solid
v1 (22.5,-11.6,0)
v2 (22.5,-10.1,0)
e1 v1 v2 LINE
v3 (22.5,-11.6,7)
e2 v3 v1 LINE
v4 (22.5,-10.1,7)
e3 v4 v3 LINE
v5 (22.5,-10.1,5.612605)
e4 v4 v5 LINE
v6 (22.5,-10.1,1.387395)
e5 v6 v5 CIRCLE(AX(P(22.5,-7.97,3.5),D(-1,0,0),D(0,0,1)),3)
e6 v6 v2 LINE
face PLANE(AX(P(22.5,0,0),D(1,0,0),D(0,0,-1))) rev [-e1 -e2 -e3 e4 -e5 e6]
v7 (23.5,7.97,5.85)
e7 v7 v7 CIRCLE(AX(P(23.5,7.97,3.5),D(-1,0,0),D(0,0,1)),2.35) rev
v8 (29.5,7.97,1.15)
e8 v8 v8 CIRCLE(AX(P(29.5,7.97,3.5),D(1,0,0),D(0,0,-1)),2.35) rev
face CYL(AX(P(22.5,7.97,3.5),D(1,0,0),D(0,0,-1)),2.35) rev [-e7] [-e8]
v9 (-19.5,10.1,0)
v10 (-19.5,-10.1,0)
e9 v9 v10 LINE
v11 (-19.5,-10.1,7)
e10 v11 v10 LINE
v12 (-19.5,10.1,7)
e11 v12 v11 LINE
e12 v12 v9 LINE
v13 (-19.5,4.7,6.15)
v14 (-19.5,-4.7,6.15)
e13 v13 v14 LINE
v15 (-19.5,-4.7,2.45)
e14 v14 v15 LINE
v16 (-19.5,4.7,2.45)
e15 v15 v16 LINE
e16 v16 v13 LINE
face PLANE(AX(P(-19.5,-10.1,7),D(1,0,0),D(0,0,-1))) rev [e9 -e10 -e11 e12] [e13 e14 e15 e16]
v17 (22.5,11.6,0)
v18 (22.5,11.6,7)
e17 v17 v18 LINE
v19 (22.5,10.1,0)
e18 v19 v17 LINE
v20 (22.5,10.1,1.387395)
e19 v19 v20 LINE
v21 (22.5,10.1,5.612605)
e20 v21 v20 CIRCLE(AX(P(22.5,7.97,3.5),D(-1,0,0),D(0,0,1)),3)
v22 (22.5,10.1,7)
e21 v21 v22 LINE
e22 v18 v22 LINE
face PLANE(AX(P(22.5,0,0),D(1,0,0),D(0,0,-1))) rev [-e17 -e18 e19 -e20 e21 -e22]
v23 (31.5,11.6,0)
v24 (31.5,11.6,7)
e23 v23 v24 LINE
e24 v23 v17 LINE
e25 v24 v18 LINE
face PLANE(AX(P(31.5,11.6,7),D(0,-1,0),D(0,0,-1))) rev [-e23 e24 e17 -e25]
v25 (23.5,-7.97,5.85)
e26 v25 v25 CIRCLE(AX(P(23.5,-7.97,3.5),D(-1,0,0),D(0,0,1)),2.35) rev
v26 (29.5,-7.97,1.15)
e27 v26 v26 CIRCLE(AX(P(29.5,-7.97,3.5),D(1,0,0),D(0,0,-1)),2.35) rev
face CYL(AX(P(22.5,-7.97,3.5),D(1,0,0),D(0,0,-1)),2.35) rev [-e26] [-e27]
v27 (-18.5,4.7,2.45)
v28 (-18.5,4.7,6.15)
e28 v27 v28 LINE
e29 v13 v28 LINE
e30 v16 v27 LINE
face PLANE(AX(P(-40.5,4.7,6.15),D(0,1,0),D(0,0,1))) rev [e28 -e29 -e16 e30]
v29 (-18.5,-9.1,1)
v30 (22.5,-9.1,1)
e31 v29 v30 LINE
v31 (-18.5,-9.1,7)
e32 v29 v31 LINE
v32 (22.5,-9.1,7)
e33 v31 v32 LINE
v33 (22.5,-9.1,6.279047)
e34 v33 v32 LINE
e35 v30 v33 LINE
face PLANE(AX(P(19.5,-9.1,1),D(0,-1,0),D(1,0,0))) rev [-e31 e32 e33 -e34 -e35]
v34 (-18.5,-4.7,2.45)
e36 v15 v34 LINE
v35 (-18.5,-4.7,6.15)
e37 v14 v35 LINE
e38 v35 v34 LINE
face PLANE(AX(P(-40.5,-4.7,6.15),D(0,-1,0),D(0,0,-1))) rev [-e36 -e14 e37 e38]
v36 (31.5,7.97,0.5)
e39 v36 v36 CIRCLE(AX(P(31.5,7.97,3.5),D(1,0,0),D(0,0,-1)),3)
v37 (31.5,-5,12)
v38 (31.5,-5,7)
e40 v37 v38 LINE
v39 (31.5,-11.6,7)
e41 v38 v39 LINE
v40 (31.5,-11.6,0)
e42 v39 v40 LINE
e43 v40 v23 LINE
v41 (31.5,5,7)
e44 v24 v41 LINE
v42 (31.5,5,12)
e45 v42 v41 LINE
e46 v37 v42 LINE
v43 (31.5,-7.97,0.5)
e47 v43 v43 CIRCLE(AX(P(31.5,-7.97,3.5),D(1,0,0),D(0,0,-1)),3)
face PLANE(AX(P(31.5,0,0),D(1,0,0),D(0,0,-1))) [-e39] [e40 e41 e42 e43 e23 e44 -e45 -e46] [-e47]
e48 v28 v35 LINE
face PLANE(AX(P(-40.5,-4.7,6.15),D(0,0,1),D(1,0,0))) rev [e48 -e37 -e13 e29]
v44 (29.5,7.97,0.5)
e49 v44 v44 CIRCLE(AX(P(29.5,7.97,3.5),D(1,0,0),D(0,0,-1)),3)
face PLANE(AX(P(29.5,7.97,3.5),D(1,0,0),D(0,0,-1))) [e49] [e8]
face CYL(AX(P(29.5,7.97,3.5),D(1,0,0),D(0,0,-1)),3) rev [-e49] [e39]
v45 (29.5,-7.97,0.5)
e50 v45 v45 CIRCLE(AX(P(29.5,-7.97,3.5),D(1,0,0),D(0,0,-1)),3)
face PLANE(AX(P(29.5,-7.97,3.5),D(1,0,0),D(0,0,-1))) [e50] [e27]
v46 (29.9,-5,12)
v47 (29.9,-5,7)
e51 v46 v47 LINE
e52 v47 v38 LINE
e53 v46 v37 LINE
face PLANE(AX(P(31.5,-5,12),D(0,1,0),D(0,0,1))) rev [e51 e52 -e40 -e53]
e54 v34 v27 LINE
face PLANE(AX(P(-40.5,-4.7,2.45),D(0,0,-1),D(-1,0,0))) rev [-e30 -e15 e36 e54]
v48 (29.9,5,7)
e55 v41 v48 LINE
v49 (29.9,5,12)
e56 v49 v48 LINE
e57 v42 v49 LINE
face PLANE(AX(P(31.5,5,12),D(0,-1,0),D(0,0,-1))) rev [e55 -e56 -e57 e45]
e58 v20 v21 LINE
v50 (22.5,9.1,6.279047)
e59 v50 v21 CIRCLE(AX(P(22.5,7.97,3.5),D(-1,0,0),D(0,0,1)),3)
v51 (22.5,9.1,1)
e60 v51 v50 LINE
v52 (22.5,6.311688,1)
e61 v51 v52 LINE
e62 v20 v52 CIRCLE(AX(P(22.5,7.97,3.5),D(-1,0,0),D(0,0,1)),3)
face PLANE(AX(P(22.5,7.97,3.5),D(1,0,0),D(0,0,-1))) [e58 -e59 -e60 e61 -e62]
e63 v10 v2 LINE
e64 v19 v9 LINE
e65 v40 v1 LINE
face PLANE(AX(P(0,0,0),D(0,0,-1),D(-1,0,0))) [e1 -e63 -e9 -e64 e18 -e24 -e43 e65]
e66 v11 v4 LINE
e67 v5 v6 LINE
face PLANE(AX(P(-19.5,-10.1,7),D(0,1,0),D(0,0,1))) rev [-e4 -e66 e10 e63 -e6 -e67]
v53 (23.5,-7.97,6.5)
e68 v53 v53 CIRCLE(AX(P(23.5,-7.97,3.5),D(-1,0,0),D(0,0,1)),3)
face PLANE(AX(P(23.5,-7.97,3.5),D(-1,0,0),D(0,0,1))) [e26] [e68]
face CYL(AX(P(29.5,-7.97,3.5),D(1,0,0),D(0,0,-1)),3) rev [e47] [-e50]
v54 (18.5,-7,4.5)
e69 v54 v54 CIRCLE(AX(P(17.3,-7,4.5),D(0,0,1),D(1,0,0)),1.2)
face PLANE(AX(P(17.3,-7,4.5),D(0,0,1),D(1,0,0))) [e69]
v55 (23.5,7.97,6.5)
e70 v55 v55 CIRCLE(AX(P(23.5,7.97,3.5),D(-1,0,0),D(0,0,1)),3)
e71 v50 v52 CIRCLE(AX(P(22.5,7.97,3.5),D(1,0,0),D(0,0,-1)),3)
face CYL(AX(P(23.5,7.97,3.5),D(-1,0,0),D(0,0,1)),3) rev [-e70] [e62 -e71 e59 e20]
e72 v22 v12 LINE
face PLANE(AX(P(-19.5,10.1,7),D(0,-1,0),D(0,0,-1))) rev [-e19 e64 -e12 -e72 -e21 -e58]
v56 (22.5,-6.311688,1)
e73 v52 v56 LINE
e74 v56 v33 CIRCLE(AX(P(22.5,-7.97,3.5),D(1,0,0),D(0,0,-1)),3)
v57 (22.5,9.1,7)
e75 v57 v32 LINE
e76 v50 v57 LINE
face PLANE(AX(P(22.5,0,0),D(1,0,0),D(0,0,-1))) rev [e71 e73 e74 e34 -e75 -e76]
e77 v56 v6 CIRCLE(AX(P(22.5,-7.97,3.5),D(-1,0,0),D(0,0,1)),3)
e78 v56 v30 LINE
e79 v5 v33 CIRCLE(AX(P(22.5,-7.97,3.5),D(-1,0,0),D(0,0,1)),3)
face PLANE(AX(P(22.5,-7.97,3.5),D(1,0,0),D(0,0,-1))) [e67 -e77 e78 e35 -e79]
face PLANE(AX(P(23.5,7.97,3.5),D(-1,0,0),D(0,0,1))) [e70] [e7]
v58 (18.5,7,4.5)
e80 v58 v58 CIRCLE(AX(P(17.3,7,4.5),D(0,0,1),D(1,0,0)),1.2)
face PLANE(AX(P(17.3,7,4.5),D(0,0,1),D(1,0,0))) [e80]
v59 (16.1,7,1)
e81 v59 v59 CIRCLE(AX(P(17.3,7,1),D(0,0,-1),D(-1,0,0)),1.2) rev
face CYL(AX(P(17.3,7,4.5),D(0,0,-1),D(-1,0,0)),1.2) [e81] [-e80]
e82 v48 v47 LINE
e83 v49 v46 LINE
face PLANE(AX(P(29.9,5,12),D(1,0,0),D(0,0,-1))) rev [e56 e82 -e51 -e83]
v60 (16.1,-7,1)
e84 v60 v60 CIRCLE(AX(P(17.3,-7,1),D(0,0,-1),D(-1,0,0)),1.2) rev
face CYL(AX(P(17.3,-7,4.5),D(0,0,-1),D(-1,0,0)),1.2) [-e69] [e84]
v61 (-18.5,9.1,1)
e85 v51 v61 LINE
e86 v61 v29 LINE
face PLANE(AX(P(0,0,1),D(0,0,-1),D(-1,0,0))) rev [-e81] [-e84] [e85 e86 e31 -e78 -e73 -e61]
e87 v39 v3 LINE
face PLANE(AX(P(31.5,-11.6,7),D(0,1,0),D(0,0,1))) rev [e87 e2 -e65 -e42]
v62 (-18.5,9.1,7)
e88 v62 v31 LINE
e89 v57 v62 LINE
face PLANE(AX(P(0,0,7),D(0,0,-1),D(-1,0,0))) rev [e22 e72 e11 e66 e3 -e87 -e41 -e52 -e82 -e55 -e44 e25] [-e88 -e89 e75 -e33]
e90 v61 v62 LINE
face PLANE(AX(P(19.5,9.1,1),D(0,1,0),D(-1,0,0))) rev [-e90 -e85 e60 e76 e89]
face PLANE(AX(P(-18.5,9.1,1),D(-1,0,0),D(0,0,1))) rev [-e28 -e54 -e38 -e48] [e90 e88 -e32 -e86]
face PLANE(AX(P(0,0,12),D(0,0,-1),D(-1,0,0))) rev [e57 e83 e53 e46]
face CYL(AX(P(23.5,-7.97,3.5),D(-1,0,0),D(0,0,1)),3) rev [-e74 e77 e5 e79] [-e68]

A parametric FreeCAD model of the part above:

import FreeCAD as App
import Part
import Sketcher

V = App.Vector


def add_polygon(sketch, points):
    """Adds a closed chain of lines whose ends are joined by coincident constraints."""
    first, n = sketch.GeometryCount, len(points)
    for a, b in zip(points, points[1:] + points[:1]):
        sketch.addGeometry(Part.LineSegment(App.Vector(*a, 0), App.Vector(*b, 0)), False)
    for i in range(n):
        sketch.addConstraint(Sketcher.Constraint("Coincident", first + i, 2, first + (i + 1) % n, 1))

doc = App.newDocument("Part")
body = doc.addObject("PartDesign::Body", "Body")

# Sketch on XY plane
sketch1 = body.newObject("Sketcher::SketchObject", "Sketch")
sketch1.AttachmentSupport = (doc.getObject("XY_Plane"), [""])
sketch1.MapMode = "FlatFace"
add_polygon(sketch1, [(-19.5, 10.1), (-19.5, -10.1), (19.5, -10.1), (19.5, 10.1)])  # lines 0-3
sketch1.addConstraint([
    Sketcher.Constraint("Vertical", 0),
    Sketcher.Constraint("Horizontal", 1),
    Sketcher.Constraint("Vertical", 2),
    Sketcher.Constraint("Horizontal", 3),
    Sketcher.Constraint("Symmetric", 0, 2, 2, 2, -1, 1),
    Sketcher.Constraint("DistanceX", 1, 1, 1, 2, 39.0),
    Sketcher.Constraint("DistanceY", 0, 2, 0, 1, 20.2),
])
pad1 = body.newObject("PartDesign::Pad", "Pad")
pad1.Profile = sketch1
pad1.Length = 7

# Sketch on XY plane
sketch2 = body.newObject("Sketcher::SketchObject", "Sketch001")
sketch2.AttachmentSupport = (doc.getObject("XY_Plane"), [""])
sketch2.MapMode = "FlatFace"
sketch2.AttachmentOffset = App.Placement(V(0, 0, 7), App.Rotation())
add_polygon(sketch2, [(-18.5, 9.1), (-18.5, -9.1), (19.5, -9.1), (19.5, 9.1)])  # lines 0-3
sketch2.addConstraint([
    Sketcher.Constraint("Vertical", 0),
    Sketcher.Constraint("Horizontal", 1),
    Sketcher.Constraint("Vertical", 2),
    Sketcher.Constraint("Horizontal", 3),
    Sketcher.Constraint("DistanceX", 1, 1, 1, 2, 38.0),
    Sketcher.Constraint("DistanceY", 0, 2, 0, 1, 18.2),
    Sketcher.Constraint("DistanceX", 0, 2, -1, 1, 18.5),
    Sketcher.Constraint("DistanceY", 0, 2, -1, 1, 9.1),
])
pocket1 = body.newObject("PartDesign::Pocket", "Pocket")
pocket1.Profile = sketch2
pocket1.Length = 6

# Sketch on XY plane
sketch3 = body.newObject("Sketcher::SketchObject", "Sketch002")
sketch3.AttachmentSupport = (doc.getObject("XY_Plane"), [""])
sketch3.MapMode = "FlatFace"
sketch3.AttachmentOffset = App.Placement(V(0, 0, 1), App.Rotation())
sketch3.addGeometry([
    Part.Circle(V(17.3, -7, 0), V(0, 0, 1), 1.2),
    Part.Circle(V(17.3, 7, 0), V(0, 0, 1), 1.2),
], False)
sketch3.addConstraint([
    Sketcher.Constraint("Equal", 0, 1),
    Sketcher.Constraint("Symmetric", 0, 3, 1, 3, -1),
    Sketcher.Constraint("Diameter", 0, 2.4),
    Sketcher.Constraint("DistanceY", 0, 3, -1, 1, 7.0),
    Sketcher.Constraint("DistanceX", -1, 1, 0, 3, 17.3),
])
pad2 = body.newObject("PartDesign::Pad", "Pad001")
pad2.Profile = sketch3
pad2.Length = 3.5

# Sketch on YZ plane
sketch4 = body.newObject("Sketcher::SketchObject", "Sketch003")
sketch4.AttachmentSupport = (doc.getObject("YZ_Plane"), [""])
sketch4.MapMode = "FlatFace"
sketch4.AttachmentOffset = App.Placement(V(0, 0, -18.5), App.Rotation())
add_polygon(sketch4, [(4.7, 6.15), (-4.7, 6.15), (-4.7, 2.45), (4.7, 2.45)])  # lines 0-3
sketch4.addConstraint([
    Sketcher.Constraint("Horizontal", 0),
    Sketcher.Constraint("Vertical", 1),
    Sketcher.Constraint("Horizontal", 2),
    Sketcher.Constraint("Vertical", 3),
    Sketcher.Constraint("DistanceX", 0, 2, 0, 1, 9.4),
    Sketcher.Constraint("DistanceY", 1, 2, 1, 1, 3.7),
    Sketcher.Constraint("DistanceX", 0, 2, -1, 1, 4.7),
    Sketcher.Constraint("DistanceY", -1, 1, 0, 2, 6.15),
])
pocket2 = body.newObject("PartDesign::Pocket", "Pocket001")
pocket2.Profile = sketch4
pocket2.Length = 22

# Sketch on YZ plane
sketch5 = body.newObject("Sketcher::SketchObject", "Sketch004")
sketch5.AttachmentSupport = (doc.getObject("YZ_Plane"), [""])
sketch5.MapMode = "FlatFace"
sketch5.AttachmentOffset = App.Placement(V(0, 0, 19.5), App.Rotation())
add_polygon(sketch5, [(-10.1, 7), (-10.1, 0), (10.1, 0), (10.1, 7), (9.1, 7), (9.1, 1), (-9.1, 1), (-9.1, 7)])  # lines 0-7
sketch5.addConstraint([
    Sketcher.Constraint("Vertical", 0),
    Sketcher.Constraint("Horizontal", 1),
    Sketcher.Constraint("Vertical", 2),
    Sketcher.Constraint("Horizontal", 3),
    Sketcher.Constraint("Vertical", 4),
    Sketcher.Constraint("Horizontal", 5),
    Sketcher.Constraint("Vertical", 6),
    Sketcher.Constraint("Horizontal", 7),
    Sketcher.Constraint("Symmetric", 0, 2, 1, 2, -1, 1),
    Sketcher.Constraint("Symmetric", 3, 2, 6, 2, -2),
    Sketcher.Constraint("DistanceX", 3, 2, 3, 1, 1.0),
    Sketcher.Constraint("DistanceY", 0, 2, 0, 1, 7.0),
    Sketcher.Constraint("DistanceY", 4, 2, 4, 1, 6.0),
    Sketcher.Constraint("DistanceX", 1, 1, 1, 2, 20.2),
])
pad3 = body.newObject("PartDesign::Pad", "Pad002")
pad3.Profile = sketch5
pad3.Length = 3

# Sketch on YZ plane
sketch6 = body.newObject("Sketcher::SketchObject", "Sketch005")
sketch6.AttachmentSupport = (doc.getObject("YZ_Plane"), [""])
sketch6.MapMode = "FlatFace"
sketch6.AttachmentOffset = App.Placement(V(0, 0, 22.5), App.Rotation())
add_polygon(sketch6, [(11.6, 7), (-11.6, 7), (-11.6, 0), (11.6, 0)])  # lines 0-3
sketch6.addConstraint([
    Sketcher.Constraint("Horizontal", 0),
    Sketcher.Constraint("Vertical", 1),
    Sketcher.Constraint("Horizontal", 2),
    Sketcher.Constraint("Vertical", 3),
    Sketcher.Constraint("Symmetric", 1, 2, 2, 2, -1, 1),
    Sketcher.Constraint("DistanceY", 1, 2, 1, 1, 7.0),
    Sketcher.Constraint("DistanceX", 0, 2, 0, 1, 23.2),
])
pad4 = body.newObject("PartDesign::Pad", "Pad003")
pad4.Profile = sketch6
pad4.Length = 9

# Sketch on YZ plane
sketch7 = body.newObject("Sketcher::SketchObject", "Sketch006")
sketch7.AttachmentSupport = (doc.getObject("YZ_Plane"), [""])
sketch7.MapMode = "FlatFace"
sketch7.AttachmentOffset = App.Placement(V(0, 0, 31.5), App.Rotation())
sketch7.addGeometry([
    Part.Circle(V(7.97, 3.5, 0), V(0, 0, 1), 2.35),
    Part.Circle(V(-7.97, 3.5, 0), V(0, 0, 1), 2.35),
], False)
sketch7.addConstraint([
    Sketcher.Constraint("Equal", 0, 1),
    Sketcher.Constraint("Symmetric", 0, 3, 1, 3, -2),
    Sketcher.Constraint("Diameter", 0, 4.7),
    Sketcher.Constraint("DistanceY", -1, 1, 0, 3, 3.5),
    Sketcher.Constraint("DistanceX", -1, 1, 0, 3, 7.97),
])
pocket3 = body.newObject("PartDesign::Pocket", "Pocket002")
pocket3.Profile = sketch7
pocket3.Length = 9

# Sketch on YZ plane
sketch8 = body.newObject("Sketcher::SketchObject", "Sketch007")
sketch8.AttachmentSupport = (doc.getObject("YZ_Plane"), [""])
sketch8.MapMode = "FlatFace"
sketch8.AttachmentOffset = App.Placement(V(0, 0, 31.5), App.Rotation())
sketch8.addGeometry([
    Part.Circle(V(7.97, 3.5, 0), V(0, 0, 1), 3),
    Part.Circle(V(-7.97, 3.5, 0), V(0, 0, 1), 3),
], False)
sketch8.addConstraint([
    Sketcher.Constraint("Equal", 0, 1),
    Sketcher.Constraint("Symmetric", 0, 3, 1, 3, -2),
    Sketcher.Constraint("Diameter", 0, 6.0),
    Sketcher.Constraint("DistanceY", -1, 1, 0, 3, 3.5),
    Sketcher.Constraint("DistanceX", -1, 1, 0, 3, 7.97),
])
pocket4 = body.newObject("PartDesign::Pocket", "Pocket003")
pocket4.Profile = sketch8
pocket4.Length = 2

# Sketch on YZ plane
sketch9 = body.newObject("Sketcher::SketchObject", "Sketch008")
sketch9.AttachmentSupport = (doc.getObject("YZ_Plane"), [""])
sketch9.MapMode = "FlatFace"
sketch9.AttachmentOffset = App.Placement(V(0, 0, 22.5), App.Rotation())
sketch9.addGeometry([
    Part.Circle(V(-7.97, 3.5, 0), V(0, 0, 1), 3),
    Part.Circle(V(7.97, 3.5, 0), V(0, 0, 1), 3),
], False)
sketch9.addConstraint([
    Sketcher.Constraint("Equal", 0, 1),
    Sketcher.Constraint("Symmetric", 0, 3, 1, 3, -2),
    Sketcher.Constraint("Diameter", 0, 6.0),
    Sketcher.Constraint("DistanceY", -1, 1, 0, 3, 3.5),
    Sketcher.Constraint("DistanceX", 0, 3, -1, 1, 7.97),
])
pocket5 = body.newObject("PartDesign::Pocket", "Pocket004")
pocket5.Profile = sketch9
pocket5.Length = 1
pocket5.Reversed = True

# Sketch on XY plane
sketch10 = body.newObject("Sketcher::SketchObject", "Sketch009")
sketch10.AttachmentSupport = (doc.getObject("XY_Plane"), [""])
sketch10.MapMode = "FlatFace"
sketch10.AttachmentOffset = App.Placement(V(0, 0, 7), App.Rotation())
add_polygon(sketch10, [(29.9, 5), (29.9, -5), (31.5, -5), (31.5, 5)])  # lines 0-3
sketch10.addConstraint([
    Sketcher.Constraint("Vertical", 0),
    Sketcher.Constraint("Horizontal", 1),
    Sketcher.Constraint("Vertical", 2),
    Sketcher.Constraint("Horizontal", 3),
    Sketcher.Constraint("DistanceY", 0, 2, 0, 1, 10.0),
    Sketcher.Constraint("DistanceX", 1, 1, 1, 2, 1.6),
    Sketcher.Constraint("DistanceY", 0, 2, -1, 1, 5.0),
    Sketcher.Constraint("DistanceX", -1, 1, 0, 2, 29.9),
])
pad5 = body.newObject("PartDesign::Pad", "Pad004")
pad5.Profile = sketch10
pad5.Length = 5

doc.recompute()
